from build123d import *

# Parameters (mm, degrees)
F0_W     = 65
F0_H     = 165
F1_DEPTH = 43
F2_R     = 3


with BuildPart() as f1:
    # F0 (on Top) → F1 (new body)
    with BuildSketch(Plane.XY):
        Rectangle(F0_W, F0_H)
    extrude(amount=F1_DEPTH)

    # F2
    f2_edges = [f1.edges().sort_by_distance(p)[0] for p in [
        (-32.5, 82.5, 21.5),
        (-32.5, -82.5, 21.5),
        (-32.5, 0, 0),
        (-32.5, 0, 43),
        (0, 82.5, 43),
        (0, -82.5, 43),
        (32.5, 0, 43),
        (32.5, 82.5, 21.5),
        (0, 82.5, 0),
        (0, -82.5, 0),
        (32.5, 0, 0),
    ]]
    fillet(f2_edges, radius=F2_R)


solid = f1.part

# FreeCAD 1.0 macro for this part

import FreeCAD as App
import Part
import Sketcher
from FreeCAD import Vector


def edges_at(feature, points):
    """Names of the edges that pass closest to the given points."""
    edges = feature.Shape.Edges
    near = lambda p: min(range(len(edges)), key=lambda i: edges[i].distToShape(Part.Vertex(*p))[0])
    return sorted({f"Edge{near(p) + 1}" for p in points})


def add_polygon(sketch, points):
    """Adds a closed chain of lines whose ends are joined by coincident constraints."""
    first, n = sketch.GeometryCount, len(points)
    for a, b in zip(points, points[1:] + points[:1]):
        sketch.addGeometry(Part.LineSegment(App.Vector(*a, 0), App.Vector(*b, 0)), False)
    for i in range(n):
        sketch.addConstraint(Sketcher.Constraint("Coincident", first + i, 2, first + (i + 1) % n, 1))

doc = App.newDocument("Part")
body = doc.addObject("PartDesign::Body", "Body")

# Sketch on XY plane
sketch1 = body.newObject("Sketcher::SketchObject", "Sketch")
sketch1.AttachmentSupport = (doc.getObject("XY_Plane"), [""])
sketch1.MapMode = "FlatFace"
add_polygon(sketch1, [(-32.5, 82.5), (-32.5, -82.5), (32.5, -82.5), (32.5, 82.5)])  # lines 0-3
sketch1.addConstraint([
    Sketcher.Constraint("Vertical", 0),
    Sketcher.Constraint("Horizontal", 1),
    Sketcher.Constraint("Vertical", 2),
    Sketcher.Constraint("Horizontal", 3),
    Sketcher.Constraint("Symmetric", 0, 2, 2, 2, -1, 1),
    Sketcher.Constraint("DistanceX", 1, 1, 1, 2, 65.0),
    Sketcher.Constraint("DistanceY", 0, 2, 0, 1, 165.0),
])
pad1 = body.newObject("PartDesign::Pad", "Pad")
pad1.Profile = sketch1
pad1.Length = 43
doc.recompute()

fillet = body.newObject("PartDesign::Fillet", "Fillet")
fillet.Base = (pad1, edges_at(pad1, [
    (-32.5, 82.5, 21.5),
    (-32.5, -82.5, 21.5),
    (-32.5, 0, 0),
    (-32.5, 0, 43),
    (0, 82.5, 43),
    (0, -82.5, 43),
    (32.5, 0, 43),
    (32.5, 82.5, 21.5),
    (0, 82.5, 0),
    (0, -82.5, 0),
    (32.5, 0, 0),
]))
fillet.Radius = 3

doc.recompute()
